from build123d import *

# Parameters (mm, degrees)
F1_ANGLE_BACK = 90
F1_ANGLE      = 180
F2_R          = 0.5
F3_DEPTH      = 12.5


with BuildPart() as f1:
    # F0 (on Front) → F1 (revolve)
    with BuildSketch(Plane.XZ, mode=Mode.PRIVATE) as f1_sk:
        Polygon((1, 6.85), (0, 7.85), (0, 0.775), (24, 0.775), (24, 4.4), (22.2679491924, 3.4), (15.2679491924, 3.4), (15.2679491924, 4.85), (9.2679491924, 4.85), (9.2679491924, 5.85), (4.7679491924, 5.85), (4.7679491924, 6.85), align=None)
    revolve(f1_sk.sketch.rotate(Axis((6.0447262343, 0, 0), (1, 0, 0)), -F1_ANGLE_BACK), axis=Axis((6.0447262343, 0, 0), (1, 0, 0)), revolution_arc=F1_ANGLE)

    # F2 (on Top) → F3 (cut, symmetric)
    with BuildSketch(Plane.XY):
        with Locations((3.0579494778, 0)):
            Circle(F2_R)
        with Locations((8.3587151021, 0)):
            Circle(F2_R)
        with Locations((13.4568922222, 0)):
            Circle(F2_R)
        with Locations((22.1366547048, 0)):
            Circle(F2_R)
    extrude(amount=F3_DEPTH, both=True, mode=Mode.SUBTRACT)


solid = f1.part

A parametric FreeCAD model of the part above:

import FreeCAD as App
import Part
import Sketcher
from FreeCAD import Vector
Q = App.Units.Quantity


def add_polygon(sketch, points):
    """Adds a closed chain of lines whose ends are joined by coincident constraints."""
    first, n = sketch.GeometryCount, len(points)
    for a, b in zip(points, points[1:] + points[:1]):
        sketch.addGeometry(Part.LineSegment(App.Vector(*a, 0), App.Vector(*b, 0)), False)
    for i in range(n):
        sketch.addConstraint(Sketcher.Constraint("Coincident", first + i, 2, first + (i + 1) % n, 1))

doc = App.newDocument("Part")
body = doc.addObject("PartDesign::Body", "Body")

sketch1 = doc.addObject("Sketcher::SketchObject", "Sketch")
body.addObject(sketch1)
sketch1.AttachmentSupport = (doc.XY_Plane, [""])
sketch1.MapMode = "FlatFace"
add_polygon(sketch1, [(1, 6.8), (0, 7.8), (0, 0.8), (24, 0.8), (24, 4.4), (22.3, 3.4), (15.3, 3.4), (15.3, 4.8), (9.3, 4.8), (9.3, 5.8), (4.8, 5.8), (4.8, 6.8)])
sketch1.addConstraint([
    Sketcher.Constraint("Vertical", 1),
    Sketcher.Constraint("Horizontal", 2),
    Sketcher.Constraint("Vertical", 3),
    Sketcher.Constraint("Horizontal", 5),
    Sketcher.Constraint("Vertical", 6),
    Sketcher.Constraint("Horizontal", 7),
    Sketcher.Constraint("Vertical", 8),
    Sketcher.Constraint("Horizontal", 9),
    Sketcher.Constraint("Vertical", 10),
    Sketcher.Constraint("Horizontal", 11),
    Sketcher.Constraint("PointOnObject", 0, 2, -2),
    Sketcher.Constraint("Equal", 8, 10),
    Sketcher.Constraint("DistanceX", 2, 1, 2, 2, Q("24 mm")),
    Sketcher.Constraint("DistanceX", 5, 2, 5, 1, Q("7 mm")),
    Sketcher.Constraint("DistanceX", 7, 2, 7, 1, Q("6 mm")),
    Sketcher.Constraint("DistanceY", 8, 1, 8, 2, Q("1 mm")),
    Sketcher.Constraint("Angle", 0, Q("135 deg")),
    Sketcher.Constraint("Angle", 4, Q("-150 deg")),
    Sketcher.Constraint("Distance", 4, Q("2 mm")),
    Sketcher.Constraint("DistanceX", 9, 2, 9, 1, Q("4.5 mm")),
    Sketcher.Constraint("DistanceX", -1, 1, 11, 2, Q("1 mm")),
    Sketcher.Constraint("DistanceY", 6, 1, 6, 2, Q("1.45 mm")),
    Sketcher.Constraint("DistanceY", -1, 1, 3, 2, Q("4.4 mm")),
    Sketcher.Constraint("DistanceY", 1, 2, 1, 1, Q("7.075 mm")),
])
revolution = doc.addObject("PartDesign::Revolution", "Revolution")
body.addObject(revolution)
revolution.Profile = sketch1
revolution.ReferenceAxis = (sketch1, ["H_Axis"])
revolution.Angle = 180

sketch2 = doc.addObject("Sketcher::SketchObject", "Sketch001")
body.addObject(sketch2)
sketch2.AttachmentSupport = (doc.XY_Plane, [""])
sketch2.MapMode = "FlatFace"
sketch2.addGeometry([
    Part.Circle(Vector(3.1, 0, 0), Vector(0, 0, 1), 0.5),
    Part.Circle(Vector(8.4, 0, 0), Vector(0, 0, 1), 0.5),
    Part.Circle(Vector(13.5, 0, 0), Vector(0, 0, 1), 0.5),
    Part.Circle(Vector(22.1, 0, 0), Vector(0, 0, 1), 0.5),
], False)
sketch2.addConstraint([
    Sketcher.Constraint("Equal", 0, 1),
    Sketcher.Constraint("Equal", 1, 2),
    Sketcher.Constraint("Equal", 2, 3),
    Sketcher.Constraint("PointOnObject", 0, 3, -1),
    Sketcher.Constraint("PointOnObject", 1, 3, -1),
    Sketcher.Constraint("PointOnObject", 2, 3, -1),
    Sketcher.Constraint("PointOnObject", 3, 3, -1),
    Sketcher.Constraint("Diameter", 0, Q("1 mm")),
    Sketcher.Constraint("DistanceX", -1, 1, 0, 3, Q("3.057949 mm")),
    Sketcher.Constraint("DistanceX", 1, 3, 3, 3, Q("13.77794 mm")),
    Sketcher.Constraint("DistanceX", -1, 1, 1, 3, Q("8.358715 mm")),
    Sketcher.Constraint("DistanceX", -1, 1, 2, 3, Q("13.456892 mm")),
])
pocket1 = doc.addObject("PartDesign::Pocket", "Pocket")
body.addObject(pocket1)
pocket1.Profile = sketch2
pocket1.Length = 25
pocket1.Midplane = True

doc.recompute()
